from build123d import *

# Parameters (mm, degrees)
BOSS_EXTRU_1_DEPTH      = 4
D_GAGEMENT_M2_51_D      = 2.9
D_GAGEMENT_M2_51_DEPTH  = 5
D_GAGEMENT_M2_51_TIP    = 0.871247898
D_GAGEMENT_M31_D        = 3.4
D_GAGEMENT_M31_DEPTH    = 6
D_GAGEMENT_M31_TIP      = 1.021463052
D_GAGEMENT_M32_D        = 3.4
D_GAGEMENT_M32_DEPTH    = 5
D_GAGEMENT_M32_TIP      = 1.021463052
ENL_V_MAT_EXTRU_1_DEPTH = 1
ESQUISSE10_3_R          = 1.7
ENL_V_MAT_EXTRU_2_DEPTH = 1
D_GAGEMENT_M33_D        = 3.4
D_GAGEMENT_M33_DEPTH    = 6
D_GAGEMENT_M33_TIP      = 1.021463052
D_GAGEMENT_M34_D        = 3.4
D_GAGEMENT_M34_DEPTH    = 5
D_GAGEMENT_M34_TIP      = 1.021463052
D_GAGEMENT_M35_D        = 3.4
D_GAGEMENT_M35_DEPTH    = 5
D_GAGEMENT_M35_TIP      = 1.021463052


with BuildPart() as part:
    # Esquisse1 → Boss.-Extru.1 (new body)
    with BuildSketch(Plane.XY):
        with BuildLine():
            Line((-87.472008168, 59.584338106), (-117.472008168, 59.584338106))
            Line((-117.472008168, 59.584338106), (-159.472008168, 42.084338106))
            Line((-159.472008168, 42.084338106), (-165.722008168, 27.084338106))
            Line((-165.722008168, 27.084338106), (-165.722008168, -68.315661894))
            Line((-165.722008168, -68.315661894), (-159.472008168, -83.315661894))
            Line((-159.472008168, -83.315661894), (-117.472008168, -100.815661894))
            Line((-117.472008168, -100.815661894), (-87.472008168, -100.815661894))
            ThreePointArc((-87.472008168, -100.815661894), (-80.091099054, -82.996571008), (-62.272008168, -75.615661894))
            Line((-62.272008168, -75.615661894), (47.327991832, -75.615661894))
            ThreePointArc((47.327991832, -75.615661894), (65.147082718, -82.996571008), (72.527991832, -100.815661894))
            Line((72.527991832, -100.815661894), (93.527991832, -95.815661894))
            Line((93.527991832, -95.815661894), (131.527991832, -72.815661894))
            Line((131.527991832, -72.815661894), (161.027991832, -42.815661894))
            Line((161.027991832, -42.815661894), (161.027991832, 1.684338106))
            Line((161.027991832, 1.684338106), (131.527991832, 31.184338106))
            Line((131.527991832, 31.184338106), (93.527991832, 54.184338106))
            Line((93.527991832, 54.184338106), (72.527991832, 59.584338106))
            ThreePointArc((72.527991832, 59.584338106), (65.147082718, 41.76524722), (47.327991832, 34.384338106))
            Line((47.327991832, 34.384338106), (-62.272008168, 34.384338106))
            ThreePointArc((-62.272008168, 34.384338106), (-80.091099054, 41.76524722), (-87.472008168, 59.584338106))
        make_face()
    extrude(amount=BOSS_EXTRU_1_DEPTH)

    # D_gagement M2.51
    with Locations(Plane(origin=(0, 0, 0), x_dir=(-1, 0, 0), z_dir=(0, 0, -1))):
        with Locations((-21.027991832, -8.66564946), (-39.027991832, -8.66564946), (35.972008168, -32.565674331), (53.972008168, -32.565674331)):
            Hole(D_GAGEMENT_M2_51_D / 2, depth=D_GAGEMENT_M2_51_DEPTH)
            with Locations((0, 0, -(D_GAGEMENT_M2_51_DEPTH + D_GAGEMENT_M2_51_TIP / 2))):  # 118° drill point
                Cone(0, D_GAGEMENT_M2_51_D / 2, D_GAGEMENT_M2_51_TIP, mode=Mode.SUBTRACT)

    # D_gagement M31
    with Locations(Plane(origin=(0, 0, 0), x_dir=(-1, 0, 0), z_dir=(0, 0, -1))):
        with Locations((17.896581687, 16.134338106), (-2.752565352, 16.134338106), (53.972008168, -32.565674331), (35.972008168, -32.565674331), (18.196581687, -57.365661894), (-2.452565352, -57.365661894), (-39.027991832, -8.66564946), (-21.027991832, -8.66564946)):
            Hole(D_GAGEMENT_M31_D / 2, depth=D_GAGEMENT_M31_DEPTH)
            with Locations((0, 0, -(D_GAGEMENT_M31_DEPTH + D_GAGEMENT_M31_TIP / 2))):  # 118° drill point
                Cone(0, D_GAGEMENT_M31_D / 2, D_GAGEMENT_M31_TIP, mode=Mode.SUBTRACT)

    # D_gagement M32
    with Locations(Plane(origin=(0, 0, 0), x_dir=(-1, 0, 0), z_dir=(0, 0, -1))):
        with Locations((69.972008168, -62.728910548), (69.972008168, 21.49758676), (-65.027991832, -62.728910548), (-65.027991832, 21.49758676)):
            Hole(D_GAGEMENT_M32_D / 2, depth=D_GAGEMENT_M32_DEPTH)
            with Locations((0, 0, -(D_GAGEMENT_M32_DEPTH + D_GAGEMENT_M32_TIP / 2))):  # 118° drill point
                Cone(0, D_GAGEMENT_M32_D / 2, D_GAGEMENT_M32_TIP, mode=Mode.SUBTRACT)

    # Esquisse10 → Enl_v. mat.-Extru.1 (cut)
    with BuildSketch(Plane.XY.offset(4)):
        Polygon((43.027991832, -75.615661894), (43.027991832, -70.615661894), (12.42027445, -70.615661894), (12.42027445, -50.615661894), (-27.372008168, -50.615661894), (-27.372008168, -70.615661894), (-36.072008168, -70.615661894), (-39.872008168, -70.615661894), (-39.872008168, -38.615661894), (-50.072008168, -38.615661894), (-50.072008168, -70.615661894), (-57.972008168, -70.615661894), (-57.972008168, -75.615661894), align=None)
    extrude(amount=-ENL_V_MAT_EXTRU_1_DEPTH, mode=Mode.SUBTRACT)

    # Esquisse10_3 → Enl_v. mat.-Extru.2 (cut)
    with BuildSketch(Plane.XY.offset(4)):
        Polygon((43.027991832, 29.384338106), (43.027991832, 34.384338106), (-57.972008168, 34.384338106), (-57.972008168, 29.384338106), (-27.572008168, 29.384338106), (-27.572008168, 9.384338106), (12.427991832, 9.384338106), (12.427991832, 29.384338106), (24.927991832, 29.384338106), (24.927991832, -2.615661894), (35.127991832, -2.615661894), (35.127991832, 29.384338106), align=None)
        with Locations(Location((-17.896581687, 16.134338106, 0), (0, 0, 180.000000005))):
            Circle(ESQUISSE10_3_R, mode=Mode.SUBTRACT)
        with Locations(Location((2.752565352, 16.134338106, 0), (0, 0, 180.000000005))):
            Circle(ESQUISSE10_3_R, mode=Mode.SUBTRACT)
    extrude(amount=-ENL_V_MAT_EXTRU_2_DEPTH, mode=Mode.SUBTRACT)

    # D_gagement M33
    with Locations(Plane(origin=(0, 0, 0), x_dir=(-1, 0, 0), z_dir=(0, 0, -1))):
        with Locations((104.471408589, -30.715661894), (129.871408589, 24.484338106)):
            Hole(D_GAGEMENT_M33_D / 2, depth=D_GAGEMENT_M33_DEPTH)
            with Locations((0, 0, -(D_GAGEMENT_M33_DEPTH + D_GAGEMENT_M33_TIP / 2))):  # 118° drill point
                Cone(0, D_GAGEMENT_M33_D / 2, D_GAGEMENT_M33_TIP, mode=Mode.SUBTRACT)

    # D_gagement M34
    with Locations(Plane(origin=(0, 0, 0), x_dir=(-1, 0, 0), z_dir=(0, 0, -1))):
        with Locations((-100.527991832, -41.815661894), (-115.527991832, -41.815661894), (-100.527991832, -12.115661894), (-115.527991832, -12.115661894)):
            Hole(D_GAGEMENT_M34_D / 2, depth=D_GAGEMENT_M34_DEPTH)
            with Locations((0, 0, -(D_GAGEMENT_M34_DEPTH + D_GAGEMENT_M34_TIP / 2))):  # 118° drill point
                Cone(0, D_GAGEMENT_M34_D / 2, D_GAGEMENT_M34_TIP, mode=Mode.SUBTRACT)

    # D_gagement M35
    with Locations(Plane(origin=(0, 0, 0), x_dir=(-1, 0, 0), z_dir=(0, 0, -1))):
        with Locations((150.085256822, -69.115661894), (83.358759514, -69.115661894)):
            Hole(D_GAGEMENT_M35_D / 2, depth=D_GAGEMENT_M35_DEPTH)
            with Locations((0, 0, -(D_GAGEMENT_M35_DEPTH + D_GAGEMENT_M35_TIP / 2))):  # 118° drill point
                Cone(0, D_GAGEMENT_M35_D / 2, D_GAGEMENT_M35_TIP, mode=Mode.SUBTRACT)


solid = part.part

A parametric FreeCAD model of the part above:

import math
import FreeCAD as App
import Part
import Sketcher
Q = App.Units.Quantity


def add_polygon(sketch, points):
    """Adds a closed chain of lines whose ends are joined by coincident constraints."""
    first, n = sketch.GeometryCount, len(points)
    for a, b in zip(points, points[1:] + points[:1]):
        sketch.addGeometry(Part.LineSegment(App.Vector(*a, 0), App.Vector(*b, 0)), False)
    for i in range(n):
        sketch.addConstraint(Sketcher.Constraint("Coincident", first + i, 2, first + (i + 1) % n, 1))

doc = App.newDocument("Part")
body = doc.addObject("PartDesign::Body", "Body")

# Sketch on XY plane
sketch1 = body.newObject("Sketcher::SketchObject", "Sketch")
sketch1.AttachmentSupport = (doc.getObject("XY_Plane"), [""])
sketch1.MapMode = "FlatFace"
sketch1.addGeometry([
    Part.LineSegment(App.Vector(-87.472008, 59.584338, 0), App.Vector(-117.472008, 59.584338, 0)),  # 0
    Part.LineSegment(App.Vector(-117.472008, 59.584338, 0), App.Vector(-159.472008, 42.084338, 0)),  # 1
    Part.LineSegment(App.Vector(-159.472008, 42.084338, 0), App.Vector(-165.722008, 27.084338, 0)),  # 2
    Part.LineSegment(App.Vector(-165.722008, 27.084338, 0), App.Vector(-165.722008, -68.315662, 0)),  # 3
    Part.LineSegment(App.Vector(-165.722008, -68.315662, 0), App.Vector(-159.472008, -83.315662, 0)),  # 4
    Part.LineSegment(App.Vector(-159.472008, -83.315662, 0), App.Vector(-117.472008, -100.815662, 0)),  # 5
    Part.LineSegment(App.Vector(-117.472008, -100.815662, 0), App.Vector(-87.472008, -100.815662, 0)),  # 6
    Part.ArcOfCircle(Part.Circle(App.Vector(-62.272008, -100.815662, 0), App.Vector(0, 0, 1), 25.2), math.radians(90), math.radians(180)),  # 7
    Part.LineSegment(App.Vector(-62.272008, -75.615662, 0), App.Vector(47.327992, -75.615662, 0)),  # 8
    Part.ArcOfCircle(Part.Circle(App.Vector(47.327992, -100.815662, 0), App.Vector(0, 0, 1), 25.2), math.radians(0), math.radians(90)),  # 9
    Part.LineSegment(App.Vector(72.527992, -100.815662, 0), App.Vector(93.527992, -95.815662, 0)),  # 10
    Part.LineSegment(App.Vector(93.527992, -95.815662, 0), App.Vector(131.527992, -72.815662, 0)),  # 11
    Part.LineSegment(App.Vector(131.527992, -72.815662, 0), App.Vector(161.027992, -42.815662, 0)),  # 12
    Part.LineSegment(App.Vector(161.027992, -42.815662, 0), App.Vector(161.027992, 1.684338, 0)),  # 13
    Part.LineSegment(App.Vector(161.027992, 1.684338, 0), App.Vector(131.527992, 31.184338, 0)),  # 14
    Part.LineSegment(App.Vector(131.527992, 31.184338, 0), App.Vector(93.527992, 54.184338, 0)),  # 15
    Part.LineSegment(App.Vector(93.527992, 54.184338, 0), App.Vector(72.527992, 59.584338, 0)),  # 16
    Part.ArcOfCircle(Part.Circle(App.Vector(47.327992, 59.584338, 0), App.Vector(0, 0, 1), 25.2), math.radians(-90), math.radians(0)),  # 17
    Part.LineSegment(App.Vector(47.327992, 34.384338, 0), App.Vector(-62.272008, 34.384338, 0)),  # 18
    Part.ArcOfCircle(Part.Circle(App.Vector(-62.272008, 59.584338, 0), App.Vector(0, 0, 1), 25.2), math.radians(180), math.radians(270)),  # 19
], False)
sketch1.addConstraint([
    Sketcher.Constraint("Coincident", 0, 2, 1, 1),
    Sketcher.Constraint("Coincident", 1, 2, 2, 1),
    Sketcher.Constraint("Coincident", 2, 2, 3, 1),
    Sketcher.Constraint("Coincident", 3, 2, 4, 1),
    Sketcher.Constraint("Coincident", 4, 2, 5, 1),
    Sketcher.Constraint("Coincident", 5, 2, 6, 1),
    Sketcher.Constraint("Coincident", 6, 2, 7, 2),
    Sketcher.Constraint("Tangent", 7, 1, 8, 1),
    Sketcher.Constraint("Tangent", 8, 2, 9, 2),
    Sketcher.Constraint("Coincident", 9, 1, 10, 1),
    Sketcher.Constraint("Coincident", 10, 2, 11, 1),
    Sketcher.Constraint("Coincident", 11, 2, 12, 1),
    Sketcher.Constraint("Coincident", 12, 2, 13, 1),
    Sketcher.Constraint("Coincident", 13, 2, 14, 1),
    Sketcher.Constraint("Coincident", 14, 2, 15, 1),
    Sketcher.Constraint("Coincident", 15, 2, 16, 1),
    Sketcher.Constraint("Coincident", 16, 2, 17, 2),
    Sketcher.Constraint("Tangent", 17, 1, 18, 1),
    Sketcher.Constraint("Tangent", 18, 2, 19, 2),
    Sketcher.Constraint("Coincident", 19, 1, 0, 1),
    Sketcher.Constraint("Horizontal", 0),
    Sketcher.Constraint("Vertical", 3),
    Sketcher.Constraint("Horizontal", 6),
    Sketcher.Constraint("Horizontal", 8),
    Sketcher.Constraint("Vertical", 13),
    Sketcher.Constraint("Horizontal", 18),
    Sketcher.Constraint("Equal", 7, 9),
    Sketcher.Constraint("Equal", 9, 17),
    Sketcher.Constraint("Equal", 17, 19),
    Sketcher.Constraint("Perpendicular", 1, 4),
    Sketcher.Constraint("Perpendicular", 2, 5),
    Sketcher.Constraint("Horizontal", 19, 3, 0, 2),
    Sketcher.Constraint("Horizontal", 9, 3, 5, 2),
    Sketcher.Constraint("Horizontal", 6, 2, 9, 1),
    Sketcher.Constraint("Horizontal", 0, 2, 16, 2),
    Sketcher.Constraint("Vertical", 9, 3, 17, 3),
    Sketcher.Constraint("Vertical", 7, 3, 19, 3),
    Sketcher.Constraint("Vertical", 1, 2, 4, 2),
    Sketcher.Constraint("Vertical", 0, 2, 5, 2),
    Sketcher.Constraint("Vertical", 11, 2, 14, 2),
    Sketcher.Constraint("Vertical", 10, 2, 15, 2),
    Sketcher.Constraint("Equal", 2, 4),
    Sketcher.Constraint("Equal", 11, 15),
    Sketcher.Constraint("Radius", 7, Q("25.2 mm")),
    Sketcher.Constraint("DistanceX", 0, 2, 0, 1, Q("30 mm")),
    Sketcher.Constraint("Angle", 14, Q("135 deg")),
    Sketcher.Constraint("DistanceX", 8, 1, 8, 2, Q("109.6 mm")),
    Sketcher.Constraint("DistanceY", 3, 2, 3, 1, Q("95.4 mm")),
    Sketcher.Constraint("DistanceY", 13, 1, 13, 2, Q("44.5 mm")),
    Sketcher.Constraint("DistanceX", 1, 2, 0, 2, Q("42 mm")),
    Sketcher.Constraint("DistanceY", 2, 2, 1, 2, Q("15 mm")),
    Sketcher.Constraint("DistanceX", 9, 1, 10, 2, Q("21 mm")),
    Sketcher.Constraint("DistanceY", 9, 1, 10, 2, Q("5 mm")),
    Sketcher.Constraint("DistanceX", 10, 2, 11, 2, Q("38 mm")),
    Sketcher.Constraint("DistanceY", 10, 2, 11, 2, Q("23 mm")),
    Sketcher.Constraint("DistanceY", 11, 2, 12, 2, Q("30 mm")),
    Sketcher.Constraint("DistanceY", 12, 2, 14, 2, Q("74 mm")),
    Sketcher.Constraint("DistanceY", 8, 2, 17, 1, Q("110 mm")),
    Sketcher.Constraint("DistanceX", 7, 3, -1, 1, Q("62.272008 mm")),
    Sketcher.Constraint("DistanceY", 7, 3, -1, 1, Q("100.815662 mm")),
])
pad1 = body.newObject("PartDesign::Pad", "Pad")
pad1.Profile = sketch1
pad1.Length = 4

# Sketch on XY plane
sketch2 = body.newObject("Sketcher::SketchObject", "Sketch001")
sketch2.AttachmentSupport = (doc.getObject("XY_Plane"), [""])
sketch2.MapMode = "FlatFace"
sketch2.addGeometry([
    Part.Circle(App.Vector(21.027992, -8.665649, 0), App.Vector(0, 0, 1), 1.45),
    Part.Circle(App.Vector(39.027992, -8.665649, 0), App.Vector(0, 0, 1), 1.45),
    Part.Circle(App.Vector(-35.972008, -32.565674, 0), App.Vector(0, 0, 1), 1.45),
    Part.Circle(App.Vector(-53.972008, -32.565674, 0), App.Vector(0, 0, 1), 1.45),
], False)
sketch2.addConstraint([
    Sketcher.Constraint("Equal", 0, 1),
    Sketcher.Constraint("Equal", 1, 2),
    Sketcher.Constraint("Equal", 2, 3),
    Sketcher.Constraint("Horizontal", 0, 3, 1, 3),
    Sketcher.Constraint("Horizontal", 2, 3, 3, 3),
    Sketcher.Constraint("Diameter", 0, Q("2.9 mm")),
    Sketcher.Constraint("DistanceX", 0, 3, 1, 3, Q("18 mm")),
    Sketcher.Constraint("DistanceX", 2, 3, 0, 3, Q("57 mm")),
    Sketcher.Constraint("DistanceX", 3, 3, 2, 3, Q("18 mm")),
    Sketcher.Constraint("DistanceX", -1, 1, 0, 3, Q("21.027992 mm")),
    Sketcher.Constraint("DistanceY", 0, 3, -1, 1, Q("8.665649 mm")),
    Sketcher.Constraint("DistanceY", 2, 3, -1, 1, Q("32.565674 mm")),
])
doc.recompute()
hole = body.newObject("PartDesign::Hole", "Hole")
hole.Profile = sketch2
hole.ThreadType = "None"
hole.Diameter = 2.9
hole.DepthType = "Dimension"
hole.Depth = 5
hole.DrillPoint = "Angled"
hole.DrillPointAngle = 118
hole.Reversed = True

# Sketch on XY plane
sketch3 = body.newObject("Sketcher::SketchObject", "Sketch002")
sketch3.AttachmentSupport = (doc.getObject("XY_Plane"), [""])
sketch3.MapMode = "FlatFace"
sketch3.addGeometry([
    Part.Circle(App.Vector(-17.896582, 16.134338, 0), App.Vector(0, 0, 1), 1.7),  # 0
    Part.Circle(App.Vector(2.752565, 16.134338, 0), App.Vector(0, 0, 1), 1.7),  # 1
    Part.Circle(App.Vector(-53.972008, -32.565674, 0), App.Vector(0, 0, 1), 1.7),  # 2
    Part.Circle(App.Vector(-35.972008, -32.565674, 0), App.Vector(0, 0, 1), 1.7),  # 3
    Part.Circle(App.Vector(-18.196582, -57.365662, 0), App.Vector(0, 0, 1), 1.7),  # 4
    Part.Circle(App.Vector(2.452565, -57.365662, 0), App.Vector(0, 0, 1), 1.7),  # 5
    Part.Circle(App.Vector(39.027992, -8.665649, 0), App.Vector(0, 0, 1), 1.7),  # 6
    Part.Circle(App.Vector(21.027992, -8.665649, 0), App.Vector(0, 0, 1), 1.7),  # 7
], False)
sketch3.addConstraint([
    Sketcher.Constraint("Equal", 0, 1),
    Sketcher.Constraint("Equal", 1, 2),
    Sketcher.Constraint("Equal", 2, 3),
    Sketcher.Constraint("Equal", 3, 4),
    Sketcher.Constraint("Equal", 4, 5),
    Sketcher.Constraint("Equal", 5, 6),
    Sketcher.Constraint("Equal", 6, 7),
    Sketcher.Constraint("Horizontal", 0, 3, 1, 3),
    Sketcher.Constraint("Horizontal", 2, 3, 3, 3),
    Sketcher.Constraint("Horizontal", 4, 3, 5, 3),
    Sketcher.Constraint("Horizontal", 6, 3, 7, 3),
    Sketcher.Constraint("Diameter", 0, Q("3.4 mm")),
    Sketcher.Constraint("DistanceX", 2, 3, 3, 3, Q("18 mm")),
    Sketcher.Constraint("DistanceX", 3, 3, 6, 3, Q("75 mm")),
    Sketcher.Constraint("DistanceX", 7, 3, 6, 3, Q("18 mm")),
    Sketcher.Constraint("DistanceX", 4, 3, 0, 3, Q("0.3 mm")),
    Sketcher.Constraint("DistanceY", 4, 3, 0, 3, Q("73.5 mm")),
    Sketcher.Constraint("DistanceX", 5, 3, 1, 3, Q("0.3 mm")),
    Sketcher.Constraint("DistanceX", 0, 3, -1, 1, Q("17.896582 mm")),
    Sketcher.Constraint("DistanceY", -1, 1, 0, 3, Q("16.134338 mm")),
    Sketcher.Constraint("DistanceX", 2, 3, -1, 1, Q("53.972008 mm")),
    Sketcher.Constraint("DistanceY", 6, 3, -1, 1, Q("8.665649 mm")),
    Sketcher.Constraint("DistanceX", -1, 1, 1, 3, Q("2.752565 mm")),
    Sketcher.Constraint("DistanceY", 2, 3, -1, 1, Q("32.565674 mm")),
])
doc.recompute()
hole2 = body.newObject("PartDesign::Hole", "Hole001")
hole2.Profile = sketch3
hole2.ThreadType = "None"
hole2.Diameter = 3.4
hole2.DepthType = "Dimension"
hole2.Depth = 6
hole2.DrillPoint = "Angled"
hole2.DrillPointAngle = 118
hole2.Reversed = True

# Sketch on XY plane
sketch4 = body.newObject("Sketcher::SketchObject", "Sketch003")
sketch4.AttachmentSupport = (doc.getObject("XY_Plane"), [""])
sketch4.MapMode = "FlatFace"
sketch4.addGeometry([
    Part.Circle(App.Vector(-69.972008, -62.728911, 0), App.Vector(0, 0, 1), 1.7),
    Part.Circle(App.Vector(-69.972008, 21.497587, 0), App.Vector(0, 0, 1), 1.7),
    Part.Circle(App.Vector(65.027992, -62.728911, 0), App.Vector(0, 0, 1), 1.7),
    Part.Circle(App.Vector(65.027992, 21.497587, 0), App.Vector(0, 0, 1), 1.7),
], False)
sketch4.addConstraint([
    Sketcher.Constraint("Equal", 0, 1),
    Sketcher.Constraint("Equal", 1, 2),
    Sketcher.Constraint("Equal", 2, 3),
    Sketcher.Constraint("Horizontal", 0, 3, 2, 3),
    Sketcher.Constraint("Horizontal", 1, 3, 3, 3),
    Sketcher.Constraint("Vertical", 0, 3, 1, 3),
    Sketcher.Constraint("Vertical", 2, 3, 3, 3),
    Sketcher.Constraint("Diameter", 0, Q("3.4 mm")),
    Sketcher.Constraint("DistanceX", 0, 3, 2, 3, Q("135 mm")),
    Sketcher.Constraint("DistanceX", 0, 3, -1, 1, Q("69.972008 mm")),
    Sketcher.Constraint("DistanceY", 0, 3, -1, 1, Q("62.728911 mm")),
    Sketcher.Constraint("DistanceY", -1, 1, 1, 3, Q("21.497587 mm")),
])
doc.recompute()
hole3 = body.newObject("PartDesign::Hole", "Hole002")
hole3.Profile = sketch4
hole3.ThreadType = "None"
hole3.Diameter = 3.4
hole3.DepthType = "Dimension"
hole3.Depth = 5
hole3.DrillPoint = "Angled"
hole3.DrillPointAngle = 118
hole3.Reversed = True

# Sketch on XY plane
sketch5 = body.newObject("Sketcher::SketchObject", "Sketch004")
sketch5.AttachmentSupport = (doc.getObject("XY_Plane"), [""])
sketch5.MapMode = "FlatFace"
sketch5.AttachmentOffset = App.Placement(App.Vector(0, 0, 4), App.Rotation())
add_polygon(sketch5, [(43.027992, -75.615662), (43.027992, -70.615662), (12.420274, -70.615662), (12.420274, -50.615662), (-27.372008, -50.615662), (-27.372008, -70.615662), (-39.872008, -70.615662), (-39.872008, -38.615662), (-50.072008, -38.615662), (-50.072008, -70.615662), (-57.972008, -70.615662), (-57.972008, -75.615662)])  # lines 0-11
sketch5.addConstraint([
    Sketcher.Constraint("Vertical", 0),
    Sketcher.Constraint("Horizontal", 1),
    Sketcher.Constraint("Vertical", 2),
    Sketcher.Constraint("Horizontal", 3),
    Sketcher.Constraint("Vertical", 4),
    Sketcher.Constraint("Horizontal", 5),
    Sketcher.Constraint("Vertical", 6),
    Sketcher.Constraint("Horizontal", 7),
    Sketcher.Constraint("Vertical", 8),
    Sketcher.Constraint("Horizontal", 9),
    Sketcher.Constraint("Vertical", 10),
    Sketcher.Constraint("Horizontal", 11),
    Sketcher.Constraint("Horizontal", 1, 2, 4, 2),
    Sketcher.Constraint("Horizontal", 5, 2, 8, 2),
    Sketcher.Constraint("DistanceX", 11, 1, 11, 2, Q("101 mm")),
    Sketcher.Constraint("DistanceY", 0, 1, 0, 2, Q("5 mm")),
    Sketcher.Constraint("DistanceY", 2, 1, 2, 2, Q("20 mm")),
    Sketcher.Constraint("DistanceY", 6, 1, 6, 2, Q("32 mm")),
    Sketcher.Constraint("DistanceX", 5, 2, 5, 1, Q("12.5 mm")),
    Sketcher.Constraint("DistanceX", 7, 2, 7, 1, Q("10.2 mm")),
    Sketcher.Constraint("DistanceX", 9, 2, 9, 1, Q("7.9 mm")),
    Sketcher.Constraint("DistanceX", 1, 2, 1, 1, Q("30.607717 mm")),
    Sketcher.Constraint("DistanceX", -1, 1, 0, 2, Q("43.027992 mm")),
    Sketcher.Constraint("DistanceY", 0, 2, -1, 1, Q("70.615662 mm")),
])
pocket1 = body.newObject("PartDesign::Pocket", "Pocket")
pocket1.Profile = sketch5
pocket1.Length = 1

# Sketch on XY plane
sketch6 = body.newObject("Sketcher::SketchObject", "Sketch005")
sketch6.AttachmentSupport = (doc.getObject("XY_Plane"), [""])
sketch6.MapMode = "FlatFace"
sketch6.AttachmentOffset = App.Placement(App.Vector(0, 0, 4), App.Rotation())
add_polygon(sketch6, [(43.027992, 29.384338), (43.027992, 34.384338), (-57.972008, 34.384338), (-57.972008, 29.384338), (-27.572008, 29.384338), (-27.572008, 9.384338), (12.427992, 9.384338), (12.427992, 29.384338), (24.927992, 29.384338), (24.927992, -2.615662), (35.127992, -2.615662), (35.127992, 29.384338)])  # lines 0-11
sketch6.addGeometry(Part.Circle(App.Vector(-17.896582, 16.134338, 0), App.Vector(0, 0, 1), 1.7), False)  # 12
sketch6.addGeometry(Part.Circle(App.Vector(2.752565, 16.134338, 0), App.Vector(0, 0, 1), 1.7), False)  # 13
sketch6.addConstraint([
    Sketcher.Constraint("Vertical", 0),
    Sketcher.Constraint("Horizontal", 1),
    Sketcher.Constraint("Vertical", 2),
    Sketcher.Constraint("Horizontal", 3),
    Sketcher.Constraint("Vertical", 4),
    Sketcher.Constraint("Horizontal", 5),
    Sketcher.Constraint("Vertical", 6),
    Sketcher.Constraint("Horizontal", 7),
    Sketcher.Constraint("Vertical", 8),
    Sketcher.Constraint("Horizontal", 9),
    Sketcher.Constraint("Vertical", 10),
    Sketcher.Constraint("Horizontal", 11),
    Sketcher.Constraint("Equal", 12, 13),
    Sketcher.Constraint("Horizontal", 12, 3, 13, 3),
    Sketcher.Constraint("Horizontal", 3, 2, 6, 2),
    Sketcher.Constraint("Horizontal", 7, 2, 10, 2),
    Sketcher.Constraint("Diameter", 12, Q("3.4 mm")),
    Sketcher.Constraint("DistanceX", 1, 2, 1, 1, Q("101 mm")),
    Sketcher.Constraint("DistanceX", 5, 1, 5, 2, Q("40 mm")),
    Sketcher.Constraint("DistanceY", 0, 1, 0, 2, Q("5 mm")),
    Sketcher.Constraint("DistanceY", 4, 2, 4, 1, Q("20 mm")),
    Sketcher.Constraint("DistanceY", 8, 2, 8, 1, Q("32 mm")),
    Sketcher.Constraint("DistanceX", 3, 1, 3, 2, Q("30.4 mm")),
    Sketcher.Constraint("DistanceX", 7, 1, 7, 2, Q("12.5 mm")),
    Sketcher.Constraint("DistanceX", 9, 1, 9, 2, Q("10.2 mm")),
    Sketcher.Constraint("DistanceY", 13, 3, 0, 2, Q("18.25 mm")),
    Sketcher.Constraint("DistanceX", 12, 3, -1, 1, Q("17.896582 mm")),
    Sketcher.Constraint("DistanceY", -1, 1, 12, 3, Q("16.134338 mm")),
    Sketcher.Constraint("DistanceX", -1, 1, 0, 2, Q("43.027992 mm")),
    Sketcher.Constraint("DistanceX", -1, 1, 13, 3, Q("2.752565 mm")),
])
pocket2 = body.newObject("PartDesign::Pocket", "Pocket001")
pocket2.Profile = sketch6
pocket2.Length = 1

# Sketch on XY plane
sketch7 = body.newObject("Sketcher::SketchObject", "Sketch006")
sketch7.AttachmentSupport = (doc.getObject("XY_Plane"), [""])
sketch7.MapMode = "FlatFace"
sketch7.addGeometry([
    Part.Circle(App.Vector(-104.471409, -30.715662, 0), App.Vector(0, 0, 1), 1.7),
    Part.Circle(App.Vector(-129.871409, 24.484338, 0), App.Vector(0, 0, 1), 1.7),
], False)
sketch7.addConstraint([
    Sketcher.Constraint("Equal", 0, 1),
    Sketcher.Constraint("Diameter", 0, Q("3.4 mm")),
    Sketcher.Constraint("DistanceX", 1, 3, 0, 3, Q("25.4 mm")),
    Sketcher.Constraint("DistanceY", 0, 3, 1, 3, Q("55.2 mm")),
    Sketcher.Constraint("DistanceX", 0, 3, -1, 1, Q("104.471409 mm")),
    Sketcher.Constraint("DistanceY", 0, 3, -1, 1, Q("30.715662 mm")),
])
doc.recompute()
hole4 = body.newObject("PartDesign::Hole", "Hole003")
hole4.Profile = sketch7
hole4.ThreadType = "None"
hole4.Diameter = 3.4
hole4.DepthType = "Dimension"
hole4.Depth = 6
hole4.DrillPoint = "Angled"
hole4.DrillPointAngle = 118
hole4.Reversed = True

# Sketch on XY plane
sketch8 = body.newObject("Sketcher::SketchObject", "Sketch007")
sketch8.AttachmentSupport = (doc.getObject("XY_Plane"), [""])
sketch8.MapMode = "FlatFace"
sketch8.addGeometry([
    Part.Circle(App.Vector(100.527992, -41.815662, 0), App.Vector(0, 0, 1), 1.7),
    Part.Circle(App.Vector(115.527992, -41.815662, 0), App.Vector(0, 0, 1), 1.7),
    Part.Circle(App.Vector(100.527992, -12.115662, 0), App.Vector(0, 0, 1), 1.7),
    Part.Circle(App.Vector(115.527992, -12.115662, 0), App.Vector(0, 0, 1), 1.7),
], False)
sketch8.addConstraint([
    Sketcher.Constraint("Equal", 0, 1),
    Sketcher.Constraint("Equal", 1, 2),
    Sketcher.Constraint("Equal", 2, 3),
    Sketcher.Constraint("Horizontal", 0, 3, 1, 3),
    Sketcher.Constraint("Horizontal", 2, 3, 3, 3),
    Sketcher.Constraint("Vertical", 0, 3, 2, 3),
    Sketcher.Constraint("Vertical", 1, 3, 3, 3),
    Sketcher.Constraint("Diameter", 0, Q("3.4 mm")),
    Sketcher.Constraint("DistanceX", 0, 3, 1, 3, Q("15 mm")),
    Sketcher.Constraint("DistanceY", 0, 3, 2, 3, Q("29.7 mm")),
    Sketcher.Constraint("DistanceX", -1, 1, 0, 3, Q("100.527992 mm")),
    Sketcher.Constraint("DistanceY", 0, 3, -1, 1, Q("41.815662 mm")),
])
doc.recompute()
hole5 = body.newObject("PartDesign::Hole", "Hole004")
hole5.Profile = sketch8
hole5.ThreadType = "None"
hole5.Diameter = 3.4
hole5.DepthType = "Dimension"
hole5.Depth = 5
hole5.DrillPoint = "Angled"
hole5.DrillPointAngle = 118
hole5.Reversed = True

# Sketch on XY plane
sketch9 = body.newObject("Sketcher::SketchObject", "Sketch008")
sketch9.AttachmentSupport = (doc.getObject("XY_Plane"), [""])
sketch9.MapMode = "FlatFace"
sketch9.addGeometry([
    Part.Circle(App.Vector(-150.085257, -69.115662, 0), App.Vector(0, 0, 1), 1.7),
    Part.Circle(App.Vector(-83.35876, -69.115662, 0), App.Vector(0, 0, 1), 1.7),
], False)
sketch9.addConstraint([
    Sketcher.Constraint("Equal", 0, 1),
    Sketcher.Constraint("Horizontal", 0, 3, 1, 3),
    Sketcher.Constraint("Diameter", 0, Q("3.4 mm")),
    Sketcher.Constraint("DistanceY", 0, 3, -1, 1, Q("69.115662 mm")),
    Sketcher.Constraint("DistanceX", 1, 3, -1, 1, Q("83.35876 mm")),
    Sketcher.Constraint("DistanceX", 0, 3, -1, 1, Q("150.085257 mm")),
])
doc.recompute()
hole6 = body.newObject("PartDesign::Hole", "Hole005")
hole6.Profile = sketch9
hole6.ThreadType = "None"
hole6.Diameter = 3.4
hole6.DepthType = "Dimension"
hole6.Depth = 5
hole6.DrillPoint = "Angled"
hole6.DrillPointAngle = 118
hole6.Reversed = True

doc.recompute()
